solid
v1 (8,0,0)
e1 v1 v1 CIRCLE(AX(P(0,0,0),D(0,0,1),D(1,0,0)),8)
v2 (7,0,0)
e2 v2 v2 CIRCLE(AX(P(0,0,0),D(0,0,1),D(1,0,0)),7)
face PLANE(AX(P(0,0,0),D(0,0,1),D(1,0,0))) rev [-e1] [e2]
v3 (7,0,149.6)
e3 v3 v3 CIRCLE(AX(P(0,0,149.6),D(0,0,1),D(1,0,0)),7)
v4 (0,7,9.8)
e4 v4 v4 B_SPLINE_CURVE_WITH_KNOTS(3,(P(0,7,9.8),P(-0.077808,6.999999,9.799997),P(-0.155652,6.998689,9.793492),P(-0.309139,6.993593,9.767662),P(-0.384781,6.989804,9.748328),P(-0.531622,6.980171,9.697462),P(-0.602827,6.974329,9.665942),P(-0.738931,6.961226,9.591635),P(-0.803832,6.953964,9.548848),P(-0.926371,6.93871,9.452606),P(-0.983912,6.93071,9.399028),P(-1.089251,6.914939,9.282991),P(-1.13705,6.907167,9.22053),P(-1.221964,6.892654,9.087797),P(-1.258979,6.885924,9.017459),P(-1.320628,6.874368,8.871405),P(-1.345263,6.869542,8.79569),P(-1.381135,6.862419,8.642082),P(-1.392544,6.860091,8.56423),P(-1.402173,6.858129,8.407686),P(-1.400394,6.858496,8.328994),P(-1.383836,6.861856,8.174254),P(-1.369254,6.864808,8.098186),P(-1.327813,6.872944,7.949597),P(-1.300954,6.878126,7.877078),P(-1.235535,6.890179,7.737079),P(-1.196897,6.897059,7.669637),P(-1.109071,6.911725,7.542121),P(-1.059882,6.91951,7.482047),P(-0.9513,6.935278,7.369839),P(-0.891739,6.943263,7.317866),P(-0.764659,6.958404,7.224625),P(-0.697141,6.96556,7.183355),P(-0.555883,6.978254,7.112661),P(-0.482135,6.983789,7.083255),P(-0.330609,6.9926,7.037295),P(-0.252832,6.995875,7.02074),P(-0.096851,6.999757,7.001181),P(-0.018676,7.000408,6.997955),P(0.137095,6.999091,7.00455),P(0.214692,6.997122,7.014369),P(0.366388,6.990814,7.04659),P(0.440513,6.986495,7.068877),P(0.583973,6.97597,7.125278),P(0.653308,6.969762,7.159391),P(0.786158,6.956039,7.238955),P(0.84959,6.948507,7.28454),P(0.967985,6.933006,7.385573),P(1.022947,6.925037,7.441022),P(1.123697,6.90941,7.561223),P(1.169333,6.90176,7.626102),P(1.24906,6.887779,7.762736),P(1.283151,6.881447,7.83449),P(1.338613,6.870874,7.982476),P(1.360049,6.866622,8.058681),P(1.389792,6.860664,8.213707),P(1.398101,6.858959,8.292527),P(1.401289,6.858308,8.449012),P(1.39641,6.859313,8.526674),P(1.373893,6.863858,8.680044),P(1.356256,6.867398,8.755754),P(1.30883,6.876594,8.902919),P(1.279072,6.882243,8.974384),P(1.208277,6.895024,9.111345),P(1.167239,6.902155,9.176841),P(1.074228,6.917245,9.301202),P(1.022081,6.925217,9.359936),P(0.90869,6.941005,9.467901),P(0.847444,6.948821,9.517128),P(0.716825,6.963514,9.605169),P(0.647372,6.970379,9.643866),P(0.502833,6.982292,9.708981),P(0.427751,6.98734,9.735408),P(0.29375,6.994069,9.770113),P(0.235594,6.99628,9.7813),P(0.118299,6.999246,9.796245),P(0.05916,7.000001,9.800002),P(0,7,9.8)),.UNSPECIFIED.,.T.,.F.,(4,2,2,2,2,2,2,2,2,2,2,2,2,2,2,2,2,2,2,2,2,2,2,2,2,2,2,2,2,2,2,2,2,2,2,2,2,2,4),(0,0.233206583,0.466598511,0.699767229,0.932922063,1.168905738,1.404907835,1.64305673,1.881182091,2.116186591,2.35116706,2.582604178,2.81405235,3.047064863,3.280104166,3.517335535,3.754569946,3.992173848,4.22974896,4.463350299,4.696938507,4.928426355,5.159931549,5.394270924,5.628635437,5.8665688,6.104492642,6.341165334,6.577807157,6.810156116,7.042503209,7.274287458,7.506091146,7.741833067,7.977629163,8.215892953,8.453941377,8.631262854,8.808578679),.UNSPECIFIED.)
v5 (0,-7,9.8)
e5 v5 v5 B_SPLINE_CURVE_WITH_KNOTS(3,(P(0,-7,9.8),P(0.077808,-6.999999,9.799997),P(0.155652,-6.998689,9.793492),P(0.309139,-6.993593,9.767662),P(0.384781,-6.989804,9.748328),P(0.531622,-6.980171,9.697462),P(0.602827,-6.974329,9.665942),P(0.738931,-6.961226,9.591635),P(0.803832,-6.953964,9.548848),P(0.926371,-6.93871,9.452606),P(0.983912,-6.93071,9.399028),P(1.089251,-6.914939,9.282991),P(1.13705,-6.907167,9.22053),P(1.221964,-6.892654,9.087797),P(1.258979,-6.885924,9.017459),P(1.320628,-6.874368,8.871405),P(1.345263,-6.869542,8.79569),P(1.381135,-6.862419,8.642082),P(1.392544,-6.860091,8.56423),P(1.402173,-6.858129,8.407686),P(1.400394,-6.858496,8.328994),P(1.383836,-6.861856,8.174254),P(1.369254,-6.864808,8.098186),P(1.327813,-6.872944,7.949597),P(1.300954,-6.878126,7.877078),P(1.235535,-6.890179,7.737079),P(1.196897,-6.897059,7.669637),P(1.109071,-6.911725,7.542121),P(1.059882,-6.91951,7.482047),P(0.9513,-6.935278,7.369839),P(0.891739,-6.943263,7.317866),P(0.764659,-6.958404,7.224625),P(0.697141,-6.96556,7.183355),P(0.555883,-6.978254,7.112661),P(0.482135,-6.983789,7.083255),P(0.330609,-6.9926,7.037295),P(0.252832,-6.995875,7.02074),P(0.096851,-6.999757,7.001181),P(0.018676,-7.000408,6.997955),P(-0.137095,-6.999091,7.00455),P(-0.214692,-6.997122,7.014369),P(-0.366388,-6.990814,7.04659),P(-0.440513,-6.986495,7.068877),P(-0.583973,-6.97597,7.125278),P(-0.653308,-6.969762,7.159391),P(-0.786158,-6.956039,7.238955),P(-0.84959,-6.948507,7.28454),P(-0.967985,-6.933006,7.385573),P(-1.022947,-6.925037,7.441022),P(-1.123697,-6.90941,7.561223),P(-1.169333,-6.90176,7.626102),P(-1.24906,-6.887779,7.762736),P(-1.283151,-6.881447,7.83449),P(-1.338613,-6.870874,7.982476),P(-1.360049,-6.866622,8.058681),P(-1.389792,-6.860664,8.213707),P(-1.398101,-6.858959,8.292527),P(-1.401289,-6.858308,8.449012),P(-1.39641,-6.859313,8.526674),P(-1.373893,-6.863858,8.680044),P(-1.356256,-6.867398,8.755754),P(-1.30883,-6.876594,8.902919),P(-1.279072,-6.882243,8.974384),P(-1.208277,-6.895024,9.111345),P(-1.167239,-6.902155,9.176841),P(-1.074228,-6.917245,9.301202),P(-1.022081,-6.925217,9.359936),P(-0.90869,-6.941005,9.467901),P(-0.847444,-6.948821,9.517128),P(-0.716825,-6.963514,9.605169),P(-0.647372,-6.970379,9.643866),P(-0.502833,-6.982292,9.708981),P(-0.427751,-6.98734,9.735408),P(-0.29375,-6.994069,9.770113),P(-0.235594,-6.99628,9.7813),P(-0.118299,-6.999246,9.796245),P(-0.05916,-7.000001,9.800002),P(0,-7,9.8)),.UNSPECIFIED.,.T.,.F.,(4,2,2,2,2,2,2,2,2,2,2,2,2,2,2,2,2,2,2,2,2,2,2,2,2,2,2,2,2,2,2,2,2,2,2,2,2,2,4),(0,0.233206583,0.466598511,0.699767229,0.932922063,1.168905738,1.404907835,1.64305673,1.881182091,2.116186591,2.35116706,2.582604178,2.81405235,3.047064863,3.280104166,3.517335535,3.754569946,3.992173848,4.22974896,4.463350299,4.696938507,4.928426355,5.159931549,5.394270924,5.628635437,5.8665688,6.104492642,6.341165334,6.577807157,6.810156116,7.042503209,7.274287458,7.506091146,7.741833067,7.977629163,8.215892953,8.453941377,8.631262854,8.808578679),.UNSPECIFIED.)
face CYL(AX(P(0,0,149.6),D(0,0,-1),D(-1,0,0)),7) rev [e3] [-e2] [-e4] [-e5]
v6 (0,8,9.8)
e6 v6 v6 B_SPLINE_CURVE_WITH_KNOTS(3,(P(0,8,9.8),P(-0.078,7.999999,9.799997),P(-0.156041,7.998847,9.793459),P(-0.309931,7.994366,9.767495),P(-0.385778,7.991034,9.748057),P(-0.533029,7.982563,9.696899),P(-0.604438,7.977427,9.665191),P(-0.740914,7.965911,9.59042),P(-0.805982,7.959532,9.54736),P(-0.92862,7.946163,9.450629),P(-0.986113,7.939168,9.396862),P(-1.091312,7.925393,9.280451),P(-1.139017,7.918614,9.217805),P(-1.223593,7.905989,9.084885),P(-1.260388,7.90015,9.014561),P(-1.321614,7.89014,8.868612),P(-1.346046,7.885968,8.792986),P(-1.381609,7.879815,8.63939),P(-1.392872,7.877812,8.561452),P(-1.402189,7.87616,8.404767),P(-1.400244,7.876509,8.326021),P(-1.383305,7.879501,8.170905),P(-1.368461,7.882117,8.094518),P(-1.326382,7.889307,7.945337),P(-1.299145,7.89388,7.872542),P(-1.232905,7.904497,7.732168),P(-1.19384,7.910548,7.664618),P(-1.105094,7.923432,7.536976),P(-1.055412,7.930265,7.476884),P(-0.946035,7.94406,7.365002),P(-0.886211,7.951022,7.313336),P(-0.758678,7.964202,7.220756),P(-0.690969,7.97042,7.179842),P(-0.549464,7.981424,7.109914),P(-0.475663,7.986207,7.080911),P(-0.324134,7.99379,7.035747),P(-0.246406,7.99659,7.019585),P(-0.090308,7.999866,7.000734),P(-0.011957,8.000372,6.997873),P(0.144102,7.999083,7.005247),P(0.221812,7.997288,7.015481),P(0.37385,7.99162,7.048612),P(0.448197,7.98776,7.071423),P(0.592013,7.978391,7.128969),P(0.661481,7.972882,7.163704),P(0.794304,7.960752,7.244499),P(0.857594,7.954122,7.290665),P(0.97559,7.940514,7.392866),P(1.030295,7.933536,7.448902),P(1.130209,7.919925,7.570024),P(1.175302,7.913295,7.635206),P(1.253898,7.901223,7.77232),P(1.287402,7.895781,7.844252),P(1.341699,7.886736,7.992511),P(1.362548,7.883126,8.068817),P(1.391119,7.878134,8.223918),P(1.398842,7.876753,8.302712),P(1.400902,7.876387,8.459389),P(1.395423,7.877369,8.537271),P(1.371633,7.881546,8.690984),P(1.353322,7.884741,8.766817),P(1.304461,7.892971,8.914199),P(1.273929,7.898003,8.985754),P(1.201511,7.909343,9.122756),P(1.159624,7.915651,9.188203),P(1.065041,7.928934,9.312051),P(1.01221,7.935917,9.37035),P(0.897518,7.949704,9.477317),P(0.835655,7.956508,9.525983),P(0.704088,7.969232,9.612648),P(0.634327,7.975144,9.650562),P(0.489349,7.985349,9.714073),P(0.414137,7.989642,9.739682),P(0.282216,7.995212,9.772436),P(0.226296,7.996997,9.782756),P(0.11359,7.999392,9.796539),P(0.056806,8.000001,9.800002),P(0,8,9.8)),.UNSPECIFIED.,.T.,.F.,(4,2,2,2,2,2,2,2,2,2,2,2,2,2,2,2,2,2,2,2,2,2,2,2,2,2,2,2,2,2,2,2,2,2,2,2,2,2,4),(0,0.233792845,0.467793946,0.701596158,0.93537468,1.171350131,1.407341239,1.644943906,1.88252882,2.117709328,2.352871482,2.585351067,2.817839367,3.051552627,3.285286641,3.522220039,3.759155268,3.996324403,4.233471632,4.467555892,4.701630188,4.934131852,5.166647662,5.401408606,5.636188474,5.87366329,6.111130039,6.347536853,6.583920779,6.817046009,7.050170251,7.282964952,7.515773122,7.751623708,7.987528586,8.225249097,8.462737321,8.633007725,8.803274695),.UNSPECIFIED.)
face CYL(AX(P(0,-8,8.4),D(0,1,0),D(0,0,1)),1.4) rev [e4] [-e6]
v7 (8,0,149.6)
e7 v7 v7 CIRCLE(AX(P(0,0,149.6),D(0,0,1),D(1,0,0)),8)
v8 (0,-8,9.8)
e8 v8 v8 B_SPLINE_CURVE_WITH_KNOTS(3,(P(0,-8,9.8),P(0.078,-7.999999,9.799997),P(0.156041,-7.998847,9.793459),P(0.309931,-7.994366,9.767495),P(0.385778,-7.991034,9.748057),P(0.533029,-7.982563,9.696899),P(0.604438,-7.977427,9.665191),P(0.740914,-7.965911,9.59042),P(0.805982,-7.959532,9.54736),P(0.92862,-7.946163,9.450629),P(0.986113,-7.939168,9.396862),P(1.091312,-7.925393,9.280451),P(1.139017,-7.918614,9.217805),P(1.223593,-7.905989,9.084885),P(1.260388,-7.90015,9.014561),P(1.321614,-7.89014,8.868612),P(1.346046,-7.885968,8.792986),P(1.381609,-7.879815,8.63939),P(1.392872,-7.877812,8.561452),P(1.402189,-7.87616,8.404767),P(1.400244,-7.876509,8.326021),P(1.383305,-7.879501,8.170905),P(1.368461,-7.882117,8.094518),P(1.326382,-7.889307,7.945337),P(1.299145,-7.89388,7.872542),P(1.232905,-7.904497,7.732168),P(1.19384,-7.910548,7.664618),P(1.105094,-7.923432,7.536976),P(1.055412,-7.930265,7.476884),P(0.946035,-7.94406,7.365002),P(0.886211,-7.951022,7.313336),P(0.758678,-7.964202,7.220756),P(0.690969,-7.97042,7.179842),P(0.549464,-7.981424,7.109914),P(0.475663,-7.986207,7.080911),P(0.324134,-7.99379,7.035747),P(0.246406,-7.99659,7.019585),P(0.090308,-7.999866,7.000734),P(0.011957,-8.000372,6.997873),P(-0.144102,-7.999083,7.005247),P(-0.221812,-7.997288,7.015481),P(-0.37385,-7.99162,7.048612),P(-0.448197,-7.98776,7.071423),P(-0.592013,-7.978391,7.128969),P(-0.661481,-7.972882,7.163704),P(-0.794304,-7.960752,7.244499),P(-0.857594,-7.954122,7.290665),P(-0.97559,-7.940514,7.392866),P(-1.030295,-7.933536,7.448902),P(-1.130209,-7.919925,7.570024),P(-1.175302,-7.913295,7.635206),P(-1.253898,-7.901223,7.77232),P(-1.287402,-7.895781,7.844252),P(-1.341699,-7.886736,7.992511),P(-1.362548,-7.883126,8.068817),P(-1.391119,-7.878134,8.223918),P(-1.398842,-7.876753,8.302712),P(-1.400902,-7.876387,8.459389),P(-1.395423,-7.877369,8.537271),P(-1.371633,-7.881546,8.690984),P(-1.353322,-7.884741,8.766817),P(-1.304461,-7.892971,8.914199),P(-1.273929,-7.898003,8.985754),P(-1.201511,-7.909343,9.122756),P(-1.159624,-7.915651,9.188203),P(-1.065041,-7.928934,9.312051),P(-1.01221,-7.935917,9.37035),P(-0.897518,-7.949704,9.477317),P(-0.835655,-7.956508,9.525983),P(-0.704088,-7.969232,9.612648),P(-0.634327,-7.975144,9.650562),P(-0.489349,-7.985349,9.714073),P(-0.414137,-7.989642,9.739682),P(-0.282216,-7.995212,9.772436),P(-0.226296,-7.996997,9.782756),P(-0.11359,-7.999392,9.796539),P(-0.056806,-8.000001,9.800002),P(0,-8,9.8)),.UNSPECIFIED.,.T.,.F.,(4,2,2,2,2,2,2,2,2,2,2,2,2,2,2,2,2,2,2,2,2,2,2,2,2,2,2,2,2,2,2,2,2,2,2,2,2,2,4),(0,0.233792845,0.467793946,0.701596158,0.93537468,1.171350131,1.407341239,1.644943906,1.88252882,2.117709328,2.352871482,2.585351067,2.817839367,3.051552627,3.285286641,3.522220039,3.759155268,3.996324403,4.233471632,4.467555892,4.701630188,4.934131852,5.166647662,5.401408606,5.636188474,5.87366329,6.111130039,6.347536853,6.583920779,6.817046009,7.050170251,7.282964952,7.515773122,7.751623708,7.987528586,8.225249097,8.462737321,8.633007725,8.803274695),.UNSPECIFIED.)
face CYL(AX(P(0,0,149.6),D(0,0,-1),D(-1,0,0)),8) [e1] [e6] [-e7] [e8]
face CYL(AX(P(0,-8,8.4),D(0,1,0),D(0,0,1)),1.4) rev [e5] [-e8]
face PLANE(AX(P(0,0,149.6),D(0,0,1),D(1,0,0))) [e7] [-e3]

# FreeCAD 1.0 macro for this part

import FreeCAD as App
import Part
import Sketcher
Q = App.Units.Quantity

doc = App.newDocument("Part")
params = doc.addObject("Spreadsheet::Sheet", "Params")
for row, (alias, value) in enumerate([
    ("sketch1_diameter", "16 mm"),
    ("sketch1_diameter2", "14 mm"),
    ("pad1_length", "149.6 mm"),
    ("sketch2_diameter", "2.8 mm"),
], start=1):
    params.set(f"A{row}", alias)
    params.set(f"B{row}", "=" + value)
    params.setAlias(f"B{row}", alias)

body = doc.addObject("PartDesign::Body", "Body")

# Sketch on XY plane
sketch1 = body.newObject("Sketcher::SketchObject", "Sketch")
sketch1.AttachmentSupport = (doc.getObject("XY_Plane"), [""])
sketch1.MapMode = "FlatFace"
sketch1.addGeometry(Part.Circle(App.Vector(0, 0, 0), App.Vector(0, 0, 1), 8), False)
sketch1.addGeometry(Part.Circle(App.Vector(0, 0, 0), App.Vector(0, 0, 1), 7), False)
sketch1.addConstraint(Sketcher.Constraint("Coincident", 0, 3, -1, 1))
sketch1.addConstraint(Sketcher.Constraint("Coincident", 1, 3, -1, 1))
sketch1.addConstraint(Sketcher.Constraint("Diameter", 0, Q("16 mm")))
sketch1.addConstraint(Sketcher.Constraint("Diameter", 1, Q("14 mm")))
sketch1.setExpression("Constraints[2]", "Params.sketch1_diameter")
sketch1.setExpression("Constraints[3]", "Params.sketch1_diameter2")
pad1 = body.newObject("PartDesign::Pad", "Pad")
pad1.Profile = sketch1
pad1.setExpression("Length", "Params.pad1_length")

# Sketch on XZ plane
sketch2 = body.newObject("Sketcher::SketchObject", "Sketch001")
sketch2.AttachmentSupport = (doc.getObject("XZ_Plane"), [""])
sketch2.MapMode = "FlatFace"
sketch2.addGeometry(Part.Circle(App.Vector(0, 8.4, 0), App.Vector(0, 0, 1), 1.4), False)
sketch2.addConstraint(Sketcher.Constraint("PointOnObject", 0, 3, -2))
sketch2.addConstraint(Sketcher.Constraint("Diameter", 0, Q("2.8 mm")))
sketch2.addConstraint(Sketcher.Constraint("DistanceY", -1, 1, 0, 3, Q("8.4 mm")))
sketch2.setExpression("Constraints[1]", "Params.sketch2_diameter")
pocket1 = body.newObject("PartDesign::Pocket", "Pocket")
pocket1.Profile = sketch2
pocket1.Type = "ThroughAll"
pocket1.Midplane = True

doc.recompute()
